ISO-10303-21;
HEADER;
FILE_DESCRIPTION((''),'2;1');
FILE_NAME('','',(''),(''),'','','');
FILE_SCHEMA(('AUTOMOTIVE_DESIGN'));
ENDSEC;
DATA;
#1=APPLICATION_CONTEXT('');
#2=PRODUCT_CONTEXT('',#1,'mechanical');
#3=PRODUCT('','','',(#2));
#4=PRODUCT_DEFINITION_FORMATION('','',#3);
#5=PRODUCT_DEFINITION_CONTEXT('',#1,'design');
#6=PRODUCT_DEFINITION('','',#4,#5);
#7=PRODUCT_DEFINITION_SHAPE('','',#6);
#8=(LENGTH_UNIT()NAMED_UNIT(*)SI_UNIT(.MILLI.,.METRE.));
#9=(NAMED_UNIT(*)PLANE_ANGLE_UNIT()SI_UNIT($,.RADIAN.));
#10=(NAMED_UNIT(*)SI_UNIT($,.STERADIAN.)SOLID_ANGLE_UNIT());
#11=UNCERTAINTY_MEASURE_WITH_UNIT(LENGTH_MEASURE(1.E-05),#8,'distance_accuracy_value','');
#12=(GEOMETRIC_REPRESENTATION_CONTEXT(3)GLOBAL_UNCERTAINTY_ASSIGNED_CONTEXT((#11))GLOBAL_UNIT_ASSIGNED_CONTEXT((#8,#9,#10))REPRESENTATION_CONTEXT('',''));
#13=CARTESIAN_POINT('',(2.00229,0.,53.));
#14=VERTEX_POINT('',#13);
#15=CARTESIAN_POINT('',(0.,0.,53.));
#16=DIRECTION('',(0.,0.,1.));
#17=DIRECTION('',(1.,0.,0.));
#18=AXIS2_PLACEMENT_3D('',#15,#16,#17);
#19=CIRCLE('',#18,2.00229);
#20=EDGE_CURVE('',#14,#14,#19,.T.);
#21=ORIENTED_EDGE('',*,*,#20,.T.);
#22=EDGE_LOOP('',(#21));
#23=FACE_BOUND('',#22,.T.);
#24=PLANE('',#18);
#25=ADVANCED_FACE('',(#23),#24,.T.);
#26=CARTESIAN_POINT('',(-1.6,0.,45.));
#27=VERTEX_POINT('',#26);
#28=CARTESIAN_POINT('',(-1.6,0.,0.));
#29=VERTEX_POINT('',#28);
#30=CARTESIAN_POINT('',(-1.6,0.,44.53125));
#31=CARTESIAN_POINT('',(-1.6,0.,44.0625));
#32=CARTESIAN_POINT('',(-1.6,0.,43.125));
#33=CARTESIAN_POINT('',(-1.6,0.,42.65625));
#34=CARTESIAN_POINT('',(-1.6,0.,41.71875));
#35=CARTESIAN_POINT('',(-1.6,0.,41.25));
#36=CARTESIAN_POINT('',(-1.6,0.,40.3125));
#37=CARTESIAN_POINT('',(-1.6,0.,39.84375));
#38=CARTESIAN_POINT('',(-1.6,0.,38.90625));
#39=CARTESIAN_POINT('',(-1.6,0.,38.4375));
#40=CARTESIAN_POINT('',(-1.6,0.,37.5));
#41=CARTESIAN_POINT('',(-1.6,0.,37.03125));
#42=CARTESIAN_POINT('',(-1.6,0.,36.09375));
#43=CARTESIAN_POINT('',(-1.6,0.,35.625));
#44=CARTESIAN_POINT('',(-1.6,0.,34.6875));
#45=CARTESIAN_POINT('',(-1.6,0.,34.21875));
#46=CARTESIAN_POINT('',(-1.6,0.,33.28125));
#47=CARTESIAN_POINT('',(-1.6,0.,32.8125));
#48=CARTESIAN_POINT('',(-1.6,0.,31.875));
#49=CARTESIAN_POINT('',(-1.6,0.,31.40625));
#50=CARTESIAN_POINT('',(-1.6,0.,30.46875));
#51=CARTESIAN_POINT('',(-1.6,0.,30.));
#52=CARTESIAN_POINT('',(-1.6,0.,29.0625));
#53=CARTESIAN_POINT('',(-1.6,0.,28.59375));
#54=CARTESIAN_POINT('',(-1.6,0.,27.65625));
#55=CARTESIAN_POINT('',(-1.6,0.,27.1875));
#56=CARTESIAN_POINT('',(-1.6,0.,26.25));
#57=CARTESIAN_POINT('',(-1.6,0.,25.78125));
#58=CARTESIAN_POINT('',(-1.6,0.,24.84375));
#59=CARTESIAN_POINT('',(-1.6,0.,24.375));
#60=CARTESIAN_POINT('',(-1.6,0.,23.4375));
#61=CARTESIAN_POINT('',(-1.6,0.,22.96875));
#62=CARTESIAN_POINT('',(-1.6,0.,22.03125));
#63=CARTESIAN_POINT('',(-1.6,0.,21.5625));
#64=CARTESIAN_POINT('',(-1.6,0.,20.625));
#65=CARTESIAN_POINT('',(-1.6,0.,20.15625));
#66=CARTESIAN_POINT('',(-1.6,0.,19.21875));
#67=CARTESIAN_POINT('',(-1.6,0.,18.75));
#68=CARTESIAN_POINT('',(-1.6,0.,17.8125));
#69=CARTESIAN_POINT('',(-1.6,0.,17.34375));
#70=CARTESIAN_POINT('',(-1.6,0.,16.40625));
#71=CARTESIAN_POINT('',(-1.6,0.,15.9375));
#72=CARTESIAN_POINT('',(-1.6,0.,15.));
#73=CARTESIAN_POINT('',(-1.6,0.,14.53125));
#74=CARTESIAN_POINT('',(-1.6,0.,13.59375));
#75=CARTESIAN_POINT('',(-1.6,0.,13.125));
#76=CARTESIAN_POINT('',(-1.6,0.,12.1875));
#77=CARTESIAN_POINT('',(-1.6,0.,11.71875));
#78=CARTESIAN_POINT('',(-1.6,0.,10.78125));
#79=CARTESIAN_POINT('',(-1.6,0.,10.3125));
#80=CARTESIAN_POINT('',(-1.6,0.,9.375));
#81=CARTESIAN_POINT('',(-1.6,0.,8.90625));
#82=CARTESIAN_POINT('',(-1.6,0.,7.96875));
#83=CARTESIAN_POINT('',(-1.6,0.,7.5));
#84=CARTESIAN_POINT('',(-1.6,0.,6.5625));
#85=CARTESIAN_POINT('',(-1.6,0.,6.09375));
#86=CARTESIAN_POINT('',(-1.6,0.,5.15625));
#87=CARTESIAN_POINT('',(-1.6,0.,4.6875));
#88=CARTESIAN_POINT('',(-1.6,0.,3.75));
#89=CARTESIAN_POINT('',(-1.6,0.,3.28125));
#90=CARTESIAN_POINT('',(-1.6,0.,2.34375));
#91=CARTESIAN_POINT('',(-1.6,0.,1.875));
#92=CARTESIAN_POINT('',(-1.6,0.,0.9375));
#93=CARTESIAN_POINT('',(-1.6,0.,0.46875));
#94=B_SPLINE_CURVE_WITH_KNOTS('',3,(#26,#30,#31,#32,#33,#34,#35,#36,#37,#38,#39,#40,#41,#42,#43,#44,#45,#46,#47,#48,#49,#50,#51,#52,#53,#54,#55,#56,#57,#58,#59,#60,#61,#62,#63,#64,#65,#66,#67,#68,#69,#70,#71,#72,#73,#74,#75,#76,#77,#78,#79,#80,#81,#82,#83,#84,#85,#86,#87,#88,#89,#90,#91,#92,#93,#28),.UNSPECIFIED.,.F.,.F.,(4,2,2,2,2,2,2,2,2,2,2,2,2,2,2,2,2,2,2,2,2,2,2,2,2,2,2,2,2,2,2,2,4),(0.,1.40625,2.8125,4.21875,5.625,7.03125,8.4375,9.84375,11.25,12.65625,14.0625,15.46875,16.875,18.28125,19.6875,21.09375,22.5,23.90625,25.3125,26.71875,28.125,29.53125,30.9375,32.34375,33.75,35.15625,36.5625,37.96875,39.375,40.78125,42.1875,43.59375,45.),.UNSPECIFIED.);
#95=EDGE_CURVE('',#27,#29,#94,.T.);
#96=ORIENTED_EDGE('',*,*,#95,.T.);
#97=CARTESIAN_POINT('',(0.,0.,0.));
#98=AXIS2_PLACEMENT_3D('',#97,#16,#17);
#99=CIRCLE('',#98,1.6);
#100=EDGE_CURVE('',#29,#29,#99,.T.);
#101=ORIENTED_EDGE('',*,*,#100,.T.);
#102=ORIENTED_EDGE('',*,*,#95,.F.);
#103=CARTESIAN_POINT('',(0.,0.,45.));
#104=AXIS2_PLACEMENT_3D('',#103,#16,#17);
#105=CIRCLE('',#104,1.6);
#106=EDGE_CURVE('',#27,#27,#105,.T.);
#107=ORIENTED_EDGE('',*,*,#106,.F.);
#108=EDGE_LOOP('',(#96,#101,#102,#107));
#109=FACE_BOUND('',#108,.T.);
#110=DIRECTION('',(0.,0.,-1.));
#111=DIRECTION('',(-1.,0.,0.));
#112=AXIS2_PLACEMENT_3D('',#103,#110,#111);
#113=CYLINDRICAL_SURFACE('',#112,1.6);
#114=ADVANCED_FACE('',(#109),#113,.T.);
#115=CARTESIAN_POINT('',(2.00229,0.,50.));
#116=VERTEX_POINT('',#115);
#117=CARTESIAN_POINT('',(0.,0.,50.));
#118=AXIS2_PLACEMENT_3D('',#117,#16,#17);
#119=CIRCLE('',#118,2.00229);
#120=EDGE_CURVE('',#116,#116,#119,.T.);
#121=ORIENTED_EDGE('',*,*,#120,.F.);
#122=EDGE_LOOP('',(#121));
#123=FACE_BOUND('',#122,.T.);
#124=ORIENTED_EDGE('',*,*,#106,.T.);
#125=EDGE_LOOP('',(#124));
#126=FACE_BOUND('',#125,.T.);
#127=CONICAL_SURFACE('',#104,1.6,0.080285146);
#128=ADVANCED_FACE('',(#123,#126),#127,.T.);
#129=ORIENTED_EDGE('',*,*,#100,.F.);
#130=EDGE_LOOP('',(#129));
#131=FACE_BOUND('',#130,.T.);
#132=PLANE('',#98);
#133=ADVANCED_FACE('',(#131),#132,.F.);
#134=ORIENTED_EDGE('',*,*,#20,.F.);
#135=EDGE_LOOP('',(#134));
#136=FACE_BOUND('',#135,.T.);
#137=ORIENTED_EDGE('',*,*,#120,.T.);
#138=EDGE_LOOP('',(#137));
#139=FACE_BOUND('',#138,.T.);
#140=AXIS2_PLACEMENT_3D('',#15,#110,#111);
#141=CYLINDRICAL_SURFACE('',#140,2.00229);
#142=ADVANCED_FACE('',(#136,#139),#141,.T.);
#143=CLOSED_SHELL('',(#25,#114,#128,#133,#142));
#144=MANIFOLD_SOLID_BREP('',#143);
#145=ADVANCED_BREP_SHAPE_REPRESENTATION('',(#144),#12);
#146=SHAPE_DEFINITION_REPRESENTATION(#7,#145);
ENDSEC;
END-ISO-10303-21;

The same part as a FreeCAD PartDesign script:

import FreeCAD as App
import Part
import Sketcher

V = App.Vector
Q = App.Units.Quantity


def faces_at(feature, points):
    """Names of the faces that lie closest to the given points."""
    faces = feature.Shape.Faces
    near = lambda p: min(range(len(faces)), key=lambda i: faces[i].distToShape(Part.Vertex(*p))[0])
    return sorted({f"Face{near(p) + 1}" for p in points})

doc = App.newDocument("Part")
body = doc.addObject("PartDesign::Body", "Body")

# Sketch on XY plane
sketch1 = body.newObject("Sketcher::SketchObject", "Sketch")
sketch1.AttachmentSupport = (doc.getObject("XY_Plane"), [""])
sketch1.MapMode = "FlatFace"
sketch1.addGeometry(Part.Circle(V(0, 0, 0), V(0, 0, 1), 1.6), False)
sketch1.addConstraint([
    Sketcher.Constraint("Coincident", 0, 3, -1, 1),
    Sketcher.Constraint("Diameter", 0, Q("3.2 mm")),
])
pad1 = body.newObject("PartDesign::Pad", "Pad")
pad1.Profile = sketch1
pad1.Length = 45
body2 = doc.addObject("PartDesign::Body", "Body001")

# Sketch on XY plane
sketch2 = body2.newObject("Sketcher::SketchObject", "Sketch001")
sketch2.AttachmentSupport = (doc.getObject("XY_Plane001"), [""])
sketch2.MapMode = "FlatFace"
sketch2.AttachmentOffset = App.Placement(V(0, 0, 45), App.Rotation())
sketch2.addGeometry(Part.Circle(V(0, 0, 0), V(0, 0, 1), 1.6), False)
sketch2.addConstraint([
    Sketcher.Constraint("Coincident", 0, 3, -1, 1),
    Sketcher.Constraint("Diameter", 0, Q("3.2 mm")),
])
pad2 = body2.newObject("PartDesign::Pad", "Pad001")
pad2.Profile = sketch2
pad2.Length = 5
doc.recompute()

datumplane = body2.newObject("PartDesign::Plane", "DatumPlane")
datumplane.AttachmentSupport = (doc.getObject("XY_Plane001"), [""])
datumplane.MapMode = "FlatFace"
datumplane.AttachmentOffset = App.Placement(V(0, 0, 45), App.Rotation())
draft = body2.newObject("PartDesign::Draft", "Draft")
draft.Base = (pad2, faces_at(pad2, [(1.6, 0, 47.5)]))
draft.NeutralPlane = (datumplane, [""])
draft.Angle = 4.6
draft.Reversed = True
doc.recompute()

boolean = body.newObject("PartDesign::Boolean", "Boolean")
boolean.Type = "Fuse"
boolean.addObjects([body2])

# Sketch on XY plane
sketch3 = body.newObject("Sketcher::SketchObject", "Sketch002")
sketch3.AttachmentSupport = (doc.getObject("XY_Plane"), [""])
sketch3.MapMode = "FlatFace"
sketch3.AttachmentOffset = App.Placement(V(0, 0, 50), App.Rotation())
sketch3.addGeometry(Part.Circle(V(0, 0, 0), V(0, 0, 1), 2), False)
sketch3.addConstraint([
    Sketcher.Constraint("Coincident", 0, 3, -1, 1),
    Sketcher.Constraint("Diameter", 0, Q("4.004581 mm")),
])
pad3 = body.newObject("PartDesign::Pad", "Pad002")
pad3.Profile = sketch3
pad3.Length = 3

doc.recompute()
